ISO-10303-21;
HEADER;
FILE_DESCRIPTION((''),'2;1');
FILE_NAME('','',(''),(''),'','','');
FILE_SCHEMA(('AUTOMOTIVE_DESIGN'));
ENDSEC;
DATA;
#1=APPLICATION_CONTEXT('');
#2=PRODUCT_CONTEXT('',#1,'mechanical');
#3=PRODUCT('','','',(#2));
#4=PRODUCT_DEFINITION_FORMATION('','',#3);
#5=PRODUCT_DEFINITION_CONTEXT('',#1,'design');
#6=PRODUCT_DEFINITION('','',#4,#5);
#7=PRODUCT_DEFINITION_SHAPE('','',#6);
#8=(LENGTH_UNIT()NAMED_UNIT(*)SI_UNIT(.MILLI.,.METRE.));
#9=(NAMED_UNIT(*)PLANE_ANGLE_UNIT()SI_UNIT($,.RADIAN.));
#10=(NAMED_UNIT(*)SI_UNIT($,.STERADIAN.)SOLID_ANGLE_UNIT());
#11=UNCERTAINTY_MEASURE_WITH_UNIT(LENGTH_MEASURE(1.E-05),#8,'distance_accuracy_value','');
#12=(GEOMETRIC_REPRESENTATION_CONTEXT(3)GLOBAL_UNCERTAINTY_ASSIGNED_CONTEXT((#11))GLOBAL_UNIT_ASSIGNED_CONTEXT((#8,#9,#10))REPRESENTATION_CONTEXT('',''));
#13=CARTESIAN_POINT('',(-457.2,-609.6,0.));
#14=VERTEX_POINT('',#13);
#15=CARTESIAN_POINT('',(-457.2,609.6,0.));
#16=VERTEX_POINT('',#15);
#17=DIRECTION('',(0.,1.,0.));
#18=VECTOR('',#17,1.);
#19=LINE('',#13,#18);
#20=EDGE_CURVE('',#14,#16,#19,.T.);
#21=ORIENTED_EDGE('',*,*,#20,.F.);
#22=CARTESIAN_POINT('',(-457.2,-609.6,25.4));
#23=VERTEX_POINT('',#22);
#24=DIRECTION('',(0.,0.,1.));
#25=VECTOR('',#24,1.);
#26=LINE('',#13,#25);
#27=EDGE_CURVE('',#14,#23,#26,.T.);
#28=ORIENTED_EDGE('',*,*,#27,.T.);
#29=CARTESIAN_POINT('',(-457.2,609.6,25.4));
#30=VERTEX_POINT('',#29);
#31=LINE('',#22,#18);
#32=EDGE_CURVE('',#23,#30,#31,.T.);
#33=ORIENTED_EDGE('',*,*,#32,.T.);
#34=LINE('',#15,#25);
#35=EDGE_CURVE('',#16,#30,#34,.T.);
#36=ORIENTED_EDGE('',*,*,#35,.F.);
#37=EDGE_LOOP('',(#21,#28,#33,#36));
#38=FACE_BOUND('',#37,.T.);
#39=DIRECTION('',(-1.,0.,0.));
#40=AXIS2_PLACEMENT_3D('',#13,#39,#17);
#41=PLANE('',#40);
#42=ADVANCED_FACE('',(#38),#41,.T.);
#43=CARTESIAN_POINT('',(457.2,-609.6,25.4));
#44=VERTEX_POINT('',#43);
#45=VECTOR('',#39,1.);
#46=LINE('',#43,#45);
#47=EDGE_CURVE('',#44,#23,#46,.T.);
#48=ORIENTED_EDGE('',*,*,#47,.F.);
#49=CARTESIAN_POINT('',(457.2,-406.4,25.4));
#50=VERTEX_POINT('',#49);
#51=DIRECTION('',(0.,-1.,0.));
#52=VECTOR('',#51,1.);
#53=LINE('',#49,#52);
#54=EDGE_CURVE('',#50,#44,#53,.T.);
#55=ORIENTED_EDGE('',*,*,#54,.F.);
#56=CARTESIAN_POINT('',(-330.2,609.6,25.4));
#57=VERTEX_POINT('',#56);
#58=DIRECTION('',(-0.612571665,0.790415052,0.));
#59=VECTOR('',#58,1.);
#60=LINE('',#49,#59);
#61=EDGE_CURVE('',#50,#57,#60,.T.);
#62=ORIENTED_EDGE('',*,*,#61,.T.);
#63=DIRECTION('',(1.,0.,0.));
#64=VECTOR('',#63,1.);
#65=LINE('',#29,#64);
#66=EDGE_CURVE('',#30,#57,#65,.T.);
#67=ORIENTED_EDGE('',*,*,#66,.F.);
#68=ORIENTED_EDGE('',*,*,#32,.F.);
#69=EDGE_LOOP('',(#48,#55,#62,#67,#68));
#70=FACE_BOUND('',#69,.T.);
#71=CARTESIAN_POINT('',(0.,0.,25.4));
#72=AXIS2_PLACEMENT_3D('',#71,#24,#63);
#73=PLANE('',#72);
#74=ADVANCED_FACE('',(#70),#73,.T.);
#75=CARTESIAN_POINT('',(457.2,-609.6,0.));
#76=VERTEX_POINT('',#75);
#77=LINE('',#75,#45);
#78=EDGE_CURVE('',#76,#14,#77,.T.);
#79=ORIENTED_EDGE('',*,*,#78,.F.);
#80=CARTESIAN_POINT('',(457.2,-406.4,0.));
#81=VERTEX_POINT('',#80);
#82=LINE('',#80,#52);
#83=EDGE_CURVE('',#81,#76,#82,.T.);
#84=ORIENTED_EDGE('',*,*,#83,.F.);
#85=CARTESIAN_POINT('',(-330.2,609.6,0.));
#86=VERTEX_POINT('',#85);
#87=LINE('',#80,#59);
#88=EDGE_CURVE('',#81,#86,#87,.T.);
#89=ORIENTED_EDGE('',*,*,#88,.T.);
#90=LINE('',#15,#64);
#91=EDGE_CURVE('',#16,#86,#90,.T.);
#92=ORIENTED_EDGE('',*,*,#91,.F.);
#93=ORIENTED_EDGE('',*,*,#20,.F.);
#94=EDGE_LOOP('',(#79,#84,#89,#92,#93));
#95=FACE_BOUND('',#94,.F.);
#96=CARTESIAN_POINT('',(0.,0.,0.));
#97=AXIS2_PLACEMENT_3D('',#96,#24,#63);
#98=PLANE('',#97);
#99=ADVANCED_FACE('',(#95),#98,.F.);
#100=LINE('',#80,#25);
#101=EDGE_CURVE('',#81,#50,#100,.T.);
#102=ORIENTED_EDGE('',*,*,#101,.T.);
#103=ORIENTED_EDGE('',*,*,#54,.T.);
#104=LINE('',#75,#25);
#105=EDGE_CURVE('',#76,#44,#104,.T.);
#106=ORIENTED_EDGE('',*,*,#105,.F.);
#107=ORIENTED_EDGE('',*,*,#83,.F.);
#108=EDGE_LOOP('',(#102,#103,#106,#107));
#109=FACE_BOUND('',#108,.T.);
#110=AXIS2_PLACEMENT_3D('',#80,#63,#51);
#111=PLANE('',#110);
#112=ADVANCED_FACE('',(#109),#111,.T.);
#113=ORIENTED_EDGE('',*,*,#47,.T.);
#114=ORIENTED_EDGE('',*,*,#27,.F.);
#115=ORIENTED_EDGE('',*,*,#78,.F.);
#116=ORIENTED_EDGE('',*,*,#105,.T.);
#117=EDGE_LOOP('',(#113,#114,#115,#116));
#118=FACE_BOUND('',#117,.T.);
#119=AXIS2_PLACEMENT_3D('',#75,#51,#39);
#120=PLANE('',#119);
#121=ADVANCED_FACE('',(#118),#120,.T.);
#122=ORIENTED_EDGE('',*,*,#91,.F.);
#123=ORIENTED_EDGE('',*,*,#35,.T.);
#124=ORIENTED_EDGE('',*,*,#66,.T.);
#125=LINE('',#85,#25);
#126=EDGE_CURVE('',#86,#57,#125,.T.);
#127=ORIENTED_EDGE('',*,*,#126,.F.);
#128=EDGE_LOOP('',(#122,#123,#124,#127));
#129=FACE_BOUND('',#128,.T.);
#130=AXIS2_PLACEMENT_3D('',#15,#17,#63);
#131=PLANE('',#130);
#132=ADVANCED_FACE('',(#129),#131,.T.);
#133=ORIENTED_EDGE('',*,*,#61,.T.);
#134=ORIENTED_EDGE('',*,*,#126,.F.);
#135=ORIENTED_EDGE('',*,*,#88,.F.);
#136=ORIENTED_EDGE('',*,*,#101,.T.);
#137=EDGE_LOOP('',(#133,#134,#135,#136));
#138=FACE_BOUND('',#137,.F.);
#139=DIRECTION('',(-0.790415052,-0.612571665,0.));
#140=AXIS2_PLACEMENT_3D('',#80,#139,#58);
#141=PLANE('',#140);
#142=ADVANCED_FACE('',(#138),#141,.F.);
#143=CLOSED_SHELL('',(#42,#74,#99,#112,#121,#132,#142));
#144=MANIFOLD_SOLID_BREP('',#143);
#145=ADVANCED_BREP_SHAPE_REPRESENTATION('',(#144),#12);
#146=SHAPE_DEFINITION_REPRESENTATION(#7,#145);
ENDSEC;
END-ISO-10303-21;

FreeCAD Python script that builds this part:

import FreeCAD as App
import Part
import Sketcher
from FreeCAD import Vector
Q = App.Units.Quantity


def add_polygon(sketch, points):
    """Adds a closed chain of lines whose ends are joined by coincident constraints."""
    first, n = sketch.GeometryCount, len(points)
    for a, b in zip(points, points[1:] + points[:1]):
        sketch.addGeometry(Part.LineSegment(App.Vector(*a, 0), App.Vector(*b, 0)), False)
    for i in range(n):
        sketch.addConstraint(Sketcher.Constraint("Coincident", first + i, 2, first + (i + 1) % n, 1))

doc = App.newDocument("Part")
params = doc.addObject("Spreadsheet::Sheet", "Params")
for row, (alias, value) in enumerate([
    ("sketch1_width", "5 in"),
    ("sketch1_width2", "36 in"),
    ("sketch1_height", "8 in"),
    ("sketch1_height2", "48 in"),
    ("pad1_length", "1 in"),
], start=1):
    params.set(f"A{row}", alias)
    params.set(f"B{row}", "=" + value)
    params.setAlias(f"B{row}", alias)

body = doc.addObject("PartDesign::Body", "Body")

# Sketch on XY plane
sketch1 = doc.addObject("Sketcher::SketchObject", "Sketch")
body.addObject(sketch1)
sketch1.AttachmentSupport = (doc.XY_Plane, [""])
sketch1.MapMode = "FlatFace"
add_polygon(sketch1, [(457.2, -609.6), (457.2, -406.4), (-330.2, 609.6), (-457.2, 609.6), (-457.2, -609.6)])  # lines 0-4
sketch1.addConstraint(Sketcher.Constraint("Vertical", 0))
sketch1.addConstraint(Sketcher.Constraint("Horizontal", 2))
sketch1.addConstraint(Sketcher.Constraint("Vertical", 3))
sketch1.addConstraint(Sketcher.Constraint("Horizontal", 4))
sketch1.addConstraint(Sketcher.Constraint("Symmetric", 2, 2, 4, 2, -1, 1))
sketch1.addConstraint(Sketcher.Constraint("DistanceX", 2, 2, 2, 1, Q("5 in")))
sketch1.addConstraint(Sketcher.Constraint("DistanceX", 4, 1, 4, 2, Q("36 in")))
sketch1.addConstraint(Sketcher.Constraint("DistanceY", 0, 1, 0, 2, Q("8 in")))
sketch1.addConstraint(Sketcher.Constraint("DistanceY", 3, 2, 3, 1, Q("48 in")))
sketch1.setExpression("Constraints[10]", "Params.sketch1_width")
sketch1.setExpression("Constraints[11]", "Params.sketch1_width2")
sketch1.setExpression("Constraints[12]", "Params.sketch1_height")
sketch1.setExpression("Constraints[13]", "Params.sketch1_height2")
pad1 = doc.addObject("PartDesign::Pad", "Pad")
body.addObject(pad1)
pad1.Profile = sketch1
pad1.setExpression("Length", "Params.pad1_length")

doc.recompute()
